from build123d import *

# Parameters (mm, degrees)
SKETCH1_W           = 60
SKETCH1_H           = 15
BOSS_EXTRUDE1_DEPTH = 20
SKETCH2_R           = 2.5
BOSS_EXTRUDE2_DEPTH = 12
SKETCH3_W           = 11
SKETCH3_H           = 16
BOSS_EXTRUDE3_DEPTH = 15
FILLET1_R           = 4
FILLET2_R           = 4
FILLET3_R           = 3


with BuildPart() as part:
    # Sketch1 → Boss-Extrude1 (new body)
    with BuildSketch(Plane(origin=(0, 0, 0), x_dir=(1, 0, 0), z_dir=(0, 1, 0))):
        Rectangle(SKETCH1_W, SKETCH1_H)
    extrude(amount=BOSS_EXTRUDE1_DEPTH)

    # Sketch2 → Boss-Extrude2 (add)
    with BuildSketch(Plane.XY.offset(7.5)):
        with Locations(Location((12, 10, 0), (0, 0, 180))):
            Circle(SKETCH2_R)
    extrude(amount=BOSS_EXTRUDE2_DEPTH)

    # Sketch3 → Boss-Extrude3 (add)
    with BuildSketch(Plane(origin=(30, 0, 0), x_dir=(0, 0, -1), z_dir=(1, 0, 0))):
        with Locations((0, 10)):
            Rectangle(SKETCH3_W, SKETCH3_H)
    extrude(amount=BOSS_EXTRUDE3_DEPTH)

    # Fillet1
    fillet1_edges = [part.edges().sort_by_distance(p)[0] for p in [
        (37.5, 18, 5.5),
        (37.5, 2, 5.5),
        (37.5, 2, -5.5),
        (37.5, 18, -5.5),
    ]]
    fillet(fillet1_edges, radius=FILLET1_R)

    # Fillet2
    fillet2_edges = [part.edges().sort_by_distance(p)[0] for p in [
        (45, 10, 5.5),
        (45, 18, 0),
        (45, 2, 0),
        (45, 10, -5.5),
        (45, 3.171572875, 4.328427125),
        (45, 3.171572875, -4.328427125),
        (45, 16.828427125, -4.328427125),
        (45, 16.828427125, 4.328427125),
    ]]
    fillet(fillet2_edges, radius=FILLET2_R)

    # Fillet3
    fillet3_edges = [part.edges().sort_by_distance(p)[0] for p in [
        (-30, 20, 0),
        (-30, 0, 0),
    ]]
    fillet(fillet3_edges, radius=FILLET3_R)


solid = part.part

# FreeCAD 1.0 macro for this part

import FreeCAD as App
import Part
import Sketcher
Q = App.Units.Quantity


def edges_at(feature, points):
    """Names of the edges that pass closest to the given points."""
    edges = feature.Shape.Edges
    near = lambda p: min(range(len(edges)), key=lambda i: edges[i].distToShape(Part.Vertex(*p))[0])
    return sorted({f"Edge{near(p) + 1}" for p in points})

doc = App.newDocument("Part")
body = doc.addObject("PartDesign::Body", "Body")

# Sketch on XZ plane
sketch1 = body.newObject("Sketcher::SketchObject", "Sketch")
sketch1.AttachmentSupport = (doc.getObject("XZ_Plane"), [""])
sketch1.MapMode = "FlatFace"
sketch1.addGeometry([
    Part.LineSegment(App.Vector(-30, -7.5, 0), App.Vector(-30, 7.5, 0)),
    Part.LineSegment(App.Vector(-30, 7.5, 0), App.Vector(30, 7.5, 0)),
    Part.LineSegment(App.Vector(30, 7.5, 0), App.Vector(30, -7.5, 0)),
    Part.LineSegment(App.Vector(30, -7.5, 0), App.Vector(-30, -7.5, 0)),
], False)
sketch1.addConstraint([
    Sketcher.Constraint("Coincident", 0, 2, 1, 1),
    Sketcher.Constraint("Coincident", 1, 2, 2, 1),
    Sketcher.Constraint("Coincident", 2, 2, 3, 1),
    Sketcher.Constraint("Coincident", 3, 2, 0, 1),
    Sketcher.Constraint("Vertical", 0),
    Sketcher.Constraint("Horizontal", 1),
    Sketcher.Constraint("Vertical", 2),
    Sketcher.Constraint("Horizontal", 3),
    Sketcher.Constraint("Symmetric", 0, 2, 2, 2, -1, 1),
    Sketcher.Constraint("DistanceX", 1, 1, 1, 2, Q("60 mm")),
    Sketcher.Constraint("DistanceY", 0, 1, 0, 2, Q("15 mm")),
])
pad1 = body.newObject("PartDesign::Pad", "Pad")
pad1.Profile = sketch1
pad1.Length = 20
pad1.Reversed = True

# Sketch on XY plane
sketch2 = body.newObject("Sketcher::SketchObject", "Sketch001")
sketch2.AttachmentSupport = (doc.getObject("XY_Plane"), [""])
sketch2.MapMode = "FlatFace"
sketch2.AttachmentOffset = App.Placement(App.Vector(0, 0, 7.5), App.Rotation())
sketch2.addGeometry(Part.Circle(App.Vector(12, 10, 0), App.Vector(0, 0, 1), 2.5), False)
sketch2.addConstraint([
    Sketcher.Constraint("Diameter", 0, Q("5 mm")),
    Sketcher.Constraint("DistanceX", -1, 1, 0, 3, Q("12 mm")),
    Sketcher.Constraint("DistanceY", -1, 1, 0, 3, Q("10 mm")),
])
pad2 = body.newObject("PartDesign::Pad", "Pad001")
pad2.Profile = sketch2
pad2.Length = 12

# Sketch on YZ plane
sketch3 = body.newObject("Sketcher::SketchObject", "Sketch002")
sketch3.AttachmentSupport = (doc.getObject("YZ_Plane"), [""])
sketch3.MapMode = "FlatFace"
sketch3.AttachmentOffset = App.Placement(App.Vector(0, 0, 30), App.Rotation())
sketch3.addGeometry([
    Part.LineSegment(App.Vector(18, 5.5, 0), App.Vector(2, 5.5, 0)),
    Part.LineSegment(App.Vector(2, 5.5, 0), App.Vector(2, -5.5, 0)),
    Part.LineSegment(App.Vector(2, -5.5, 0), App.Vector(18, -5.5, 0)),
    Part.LineSegment(App.Vector(18, -5.5, 0), App.Vector(18, 5.5, 0)),
], False)
sketch3.addConstraint([
    Sketcher.Constraint("Coincident", 0, 2, 1, 1),
    Sketcher.Constraint("Coincident", 1, 2, 2, 1),
    Sketcher.Constraint("Coincident", 2, 2, 3, 1),
    Sketcher.Constraint("Coincident", 3, 2, 0, 1),
    Sketcher.Constraint("Horizontal", 0),
    Sketcher.Constraint("Vertical", 1),
    Sketcher.Constraint("Horizontal", 2),
    Sketcher.Constraint("Vertical", 3),
    Sketcher.Constraint("DistanceX", 0, 2, 0, 1, Q("16 mm")),
    Sketcher.Constraint("DistanceY", 1, 2, 1, 1, Q("11 mm")),
    Sketcher.Constraint("DistanceX", -1, 1, 0, 2, Q("2 mm")),
    Sketcher.Constraint("DistanceY", -1, 1, 0, 2, Q("5.5 mm")),
])
pad3 = body.newObject("PartDesign::Pad", "Pad002")
pad3.Profile = sketch3
pad3.Length = 15
doc.recompute()

fillet = body.newObject("PartDesign::Fillet", "Fillet")
fillet.Base = (pad3, edges_at(pad3, [
    (37.5, 18, 5.5),
    (37.5, 2, 5.5),
    (37.5, 2, -5.5),
    (37.5, 18, -5.5),
]))
fillet.Radius = 4
doc.recompute()

fillet2 = body.newObject("PartDesign::Fillet", "Fillet001")
fillet2.Base = (fillet, edges_at(fillet, [
    (45, 10, 5.5),
    (45, 18, 0),
    (45, 2, 0),
    (45, 10, -5.5),
    (45, 3.172, 4.328),
    (45, 3.172, -4.328),
    (45, 16.828, -4.328),
    (45, 16.828, 4.328),
]))
fillet2.Radius = 4
doc.recompute()

fillet3 = body.newObject("PartDesign::Fillet", "Fillet002")
fillet3.Base = (fillet2, edges_at(fillet2, [(-30, 20, 0), (-30, 0, 0)]))
fillet3.Radius = 3

doc.recompute()
